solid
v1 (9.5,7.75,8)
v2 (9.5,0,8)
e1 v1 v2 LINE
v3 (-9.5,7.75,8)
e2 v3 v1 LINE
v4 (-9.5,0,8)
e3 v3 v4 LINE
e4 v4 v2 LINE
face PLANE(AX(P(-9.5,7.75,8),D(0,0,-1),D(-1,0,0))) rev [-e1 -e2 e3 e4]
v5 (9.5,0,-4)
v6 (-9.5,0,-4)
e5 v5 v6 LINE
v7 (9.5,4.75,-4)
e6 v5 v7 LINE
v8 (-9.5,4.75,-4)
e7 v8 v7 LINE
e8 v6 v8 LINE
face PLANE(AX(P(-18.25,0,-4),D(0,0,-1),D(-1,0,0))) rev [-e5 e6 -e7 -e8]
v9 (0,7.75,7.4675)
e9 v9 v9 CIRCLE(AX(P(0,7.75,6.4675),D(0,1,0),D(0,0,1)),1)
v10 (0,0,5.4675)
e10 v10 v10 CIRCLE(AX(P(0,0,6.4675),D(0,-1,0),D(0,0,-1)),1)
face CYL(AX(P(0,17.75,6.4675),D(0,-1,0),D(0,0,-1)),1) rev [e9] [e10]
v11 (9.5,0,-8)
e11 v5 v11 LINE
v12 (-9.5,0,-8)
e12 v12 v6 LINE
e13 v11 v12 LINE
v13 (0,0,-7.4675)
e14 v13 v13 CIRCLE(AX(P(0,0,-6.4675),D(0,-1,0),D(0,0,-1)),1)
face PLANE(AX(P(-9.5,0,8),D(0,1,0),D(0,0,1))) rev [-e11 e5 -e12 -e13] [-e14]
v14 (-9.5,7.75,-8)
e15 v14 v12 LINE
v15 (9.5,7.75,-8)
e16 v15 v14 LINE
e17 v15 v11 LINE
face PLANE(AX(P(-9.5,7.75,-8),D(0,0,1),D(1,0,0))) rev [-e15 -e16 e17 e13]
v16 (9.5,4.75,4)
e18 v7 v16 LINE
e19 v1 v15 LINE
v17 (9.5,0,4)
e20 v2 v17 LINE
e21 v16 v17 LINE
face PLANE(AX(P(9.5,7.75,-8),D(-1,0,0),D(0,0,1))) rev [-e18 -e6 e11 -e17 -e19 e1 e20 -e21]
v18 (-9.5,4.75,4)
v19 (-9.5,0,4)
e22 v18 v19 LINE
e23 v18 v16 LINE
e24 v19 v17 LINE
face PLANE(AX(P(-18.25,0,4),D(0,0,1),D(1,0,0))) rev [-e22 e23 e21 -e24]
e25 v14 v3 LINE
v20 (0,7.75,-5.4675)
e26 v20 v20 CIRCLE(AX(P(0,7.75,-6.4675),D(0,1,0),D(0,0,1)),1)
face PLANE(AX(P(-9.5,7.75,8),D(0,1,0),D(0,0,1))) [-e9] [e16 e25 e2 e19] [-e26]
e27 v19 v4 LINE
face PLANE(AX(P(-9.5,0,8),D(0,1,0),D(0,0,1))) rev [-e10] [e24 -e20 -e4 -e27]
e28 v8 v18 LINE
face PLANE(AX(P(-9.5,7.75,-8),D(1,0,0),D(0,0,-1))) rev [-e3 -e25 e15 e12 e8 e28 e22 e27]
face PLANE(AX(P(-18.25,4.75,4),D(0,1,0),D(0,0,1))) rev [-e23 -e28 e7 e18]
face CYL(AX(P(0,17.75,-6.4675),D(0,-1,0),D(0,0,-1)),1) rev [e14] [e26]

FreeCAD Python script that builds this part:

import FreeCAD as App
import Part
import Sketcher

doc = App.newDocument("Part")
params = doc.addObject("Spreadsheet::Sheet", "Params")
for row, (alias, value) in enumerate([
    ("sketch1_width", "19 mm"),
    ("sketch1_height", "16 mm"),
    ("pad1_length", "7.75 mm"),
    ("sketch2_diameter", "2 mm"),
    ("pocket1_length", "17.75 mm"),
    ("sketch3_height", "8 mm"),
    ("sketch3_width", "4.75 mm"),
    ("pocket2_length", "27.75 mm"),
], start=1):
    params.set(f"A{row}", alias)
    params.set(f"B{row}", "=" + value)
    params.setAlias(f"B{row}", alias)

body = doc.addObject("PartDesign::Body", "Body")

# Sketch on XZ plane
sketch1 = body.newObject("Sketcher::SketchObject", "Sketch")
sketch1.AttachmentSupport = (doc.getObject("XZ_Plane"), [""])
sketch1.MapMode = "FlatFace"
sketch1.addGeometry([
    Part.LineSegment(App.Vector(-10, -8, 0), App.Vector(-10, 8, 0)),
    Part.LineSegment(App.Vector(-10, 8, 0), App.Vector(10, 8, 0)),
    Part.LineSegment(App.Vector(10, 8, 0), App.Vector(10, -8, 0)),
    Part.LineSegment(App.Vector(10, -8, 0), App.Vector(-10, -8, 0)),
], False)
sketch1.addConstraint([
    Sketcher.Constraint("Coincident", 0, 2, 1, 1),
    Sketcher.Constraint("Coincident", 1, 2, 2, 1),
    Sketcher.Constraint("Coincident", 2, 2, 3, 1),
    Sketcher.Constraint("Coincident", 3, 2, 0, 1),
    Sketcher.Constraint("Vertical", 0),
    Sketcher.Constraint("Horizontal", 1),
    Sketcher.Constraint("Vertical", 2),
    Sketcher.Constraint("Horizontal", 3),
    Sketcher.Constraint("Symmetric", 0, 2, 2, 2, -1, 1),
    Sketcher.Constraint("DistanceX", 1, 1, 1, 2, 19.0),
    Sketcher.Constraint("DistanceY", 0, 1, 0, 2, 16.0),
])
sketch1.setExpression("Constraints[9]", "Params.sketch1_width")
sketch1.setExpression("Constraints[10]", "Params.sketch1_height")
pad1 = body.newObject("PartDesign::Pad", "Pad")
pad1.Profile = sketch1
pad1.setExpression("Length", "Params.pad1_length")
pad1.Reversed = True

# Sketch on XZ plane
sketch2 = body.newObject("Sketcher::SketchObject", "Sketch001")
sketch2.AttachmentSupport = (doc.getObject("XZ_Plane"), [""])
sketch2.MapMode = "FlatFace"
sketch2.addGeometry([
    Part.Circle(App.Vector(0, -6.5, 0), App.Vector(0, 0, 1), 1),
    Part.Circle(App.Vector(0, 6.5, 0), App.Vector(0, 0, 1), 1),
], False)
sketch2.addConstraint([
    Sketcher.Constraint("Equal", 0, 1),
    Sketcher.Constraint("Symmetric", 0, 3, 1, 3, -1, 1),
    Sketcher.Constraint("PointOnObject", 0, 3, -2),
    Sketcher.Constraint("Diameter", 0, 2.0),
    Sketcher.Constraint("DistanceY", 0, 3, 1, 3, 12.935),
])
sketch2.setExpression("Constraints[3]", "Params.sketch2_diameter")
pocket1 = body.newObject("PartDesign::Pocket", "Pocket")
pocket1.Profile = sketch2
pocket1.setExpression("Length", "Params.pocket1_length")

# Sketch on YZ plane
sketch3 = body.newObject("Sketcher::SketchObject", "Sketch002")
sketch3.AttachmentSupport = (doc.getObject("YZ_Plane"), [""])
sketch3.MapMode = "FlatFace"
sketch3.AttachmentOffset = App.Placement(App.Vector(0, 0, 9.5), App.Rotation())
sketch3.addGeometry([
    Part.LineSegment(App.Vector(4.8, 4, 0), App.Vector(0, 4, 0)),
    Part.LineSegment(App.Vector(0, 4, 0), App.Vector(0, -4, 0)),
    Part.LineSegment(App.Vector(0, -4, 0), App.Vector(4.8, -4, 0)),
    Part.LineSegment(App.Vector(4.8, -4, 0), App.Vector(4.8, 4, 0)),
], False)
sketch3.addConstraint([
    Sketcher.Constraint("Coincident", 0, 2, 1, 1),
    Sketcher.Constraint("Coincident", 1, 2, 2, 1),
    Sketcher.Constraint("Coincident", 2, 2, 3, 1),
    Sketcher.Constraint("Coincident", 3, 2, 0, 1),
    Sketcher.Constraint("Horizontal", 0),
    Sketcher.Constraint("Vertical", 1),
    Sketcher.Constraint("Horizontal", 2),
    Sketcher.Constraint("Vertical", 3),
    Sketcher.Constraint("Symmetric", 0, 2, 1, 2, -1, 1),
    Sketcher.Constraint("DistanceY", 1, 2, 1, 1, 8.0),
    Sketcher.Constraint("DistanceX", 0, 2, 0, 1, 4.75),
])
sketch3.setExpression("Constraints[9]", "Params.sketch3_height")
sketch3.setExpression("Constraints[10]", "Params.sketch3_width")
pocket2 = body.newObject("PartDesign::Pocket", "Pocket001")
pocket2.Profile = sketch3
pocket2.setExpression("Length", "Params.pocket2_length")

doc.recompute()
